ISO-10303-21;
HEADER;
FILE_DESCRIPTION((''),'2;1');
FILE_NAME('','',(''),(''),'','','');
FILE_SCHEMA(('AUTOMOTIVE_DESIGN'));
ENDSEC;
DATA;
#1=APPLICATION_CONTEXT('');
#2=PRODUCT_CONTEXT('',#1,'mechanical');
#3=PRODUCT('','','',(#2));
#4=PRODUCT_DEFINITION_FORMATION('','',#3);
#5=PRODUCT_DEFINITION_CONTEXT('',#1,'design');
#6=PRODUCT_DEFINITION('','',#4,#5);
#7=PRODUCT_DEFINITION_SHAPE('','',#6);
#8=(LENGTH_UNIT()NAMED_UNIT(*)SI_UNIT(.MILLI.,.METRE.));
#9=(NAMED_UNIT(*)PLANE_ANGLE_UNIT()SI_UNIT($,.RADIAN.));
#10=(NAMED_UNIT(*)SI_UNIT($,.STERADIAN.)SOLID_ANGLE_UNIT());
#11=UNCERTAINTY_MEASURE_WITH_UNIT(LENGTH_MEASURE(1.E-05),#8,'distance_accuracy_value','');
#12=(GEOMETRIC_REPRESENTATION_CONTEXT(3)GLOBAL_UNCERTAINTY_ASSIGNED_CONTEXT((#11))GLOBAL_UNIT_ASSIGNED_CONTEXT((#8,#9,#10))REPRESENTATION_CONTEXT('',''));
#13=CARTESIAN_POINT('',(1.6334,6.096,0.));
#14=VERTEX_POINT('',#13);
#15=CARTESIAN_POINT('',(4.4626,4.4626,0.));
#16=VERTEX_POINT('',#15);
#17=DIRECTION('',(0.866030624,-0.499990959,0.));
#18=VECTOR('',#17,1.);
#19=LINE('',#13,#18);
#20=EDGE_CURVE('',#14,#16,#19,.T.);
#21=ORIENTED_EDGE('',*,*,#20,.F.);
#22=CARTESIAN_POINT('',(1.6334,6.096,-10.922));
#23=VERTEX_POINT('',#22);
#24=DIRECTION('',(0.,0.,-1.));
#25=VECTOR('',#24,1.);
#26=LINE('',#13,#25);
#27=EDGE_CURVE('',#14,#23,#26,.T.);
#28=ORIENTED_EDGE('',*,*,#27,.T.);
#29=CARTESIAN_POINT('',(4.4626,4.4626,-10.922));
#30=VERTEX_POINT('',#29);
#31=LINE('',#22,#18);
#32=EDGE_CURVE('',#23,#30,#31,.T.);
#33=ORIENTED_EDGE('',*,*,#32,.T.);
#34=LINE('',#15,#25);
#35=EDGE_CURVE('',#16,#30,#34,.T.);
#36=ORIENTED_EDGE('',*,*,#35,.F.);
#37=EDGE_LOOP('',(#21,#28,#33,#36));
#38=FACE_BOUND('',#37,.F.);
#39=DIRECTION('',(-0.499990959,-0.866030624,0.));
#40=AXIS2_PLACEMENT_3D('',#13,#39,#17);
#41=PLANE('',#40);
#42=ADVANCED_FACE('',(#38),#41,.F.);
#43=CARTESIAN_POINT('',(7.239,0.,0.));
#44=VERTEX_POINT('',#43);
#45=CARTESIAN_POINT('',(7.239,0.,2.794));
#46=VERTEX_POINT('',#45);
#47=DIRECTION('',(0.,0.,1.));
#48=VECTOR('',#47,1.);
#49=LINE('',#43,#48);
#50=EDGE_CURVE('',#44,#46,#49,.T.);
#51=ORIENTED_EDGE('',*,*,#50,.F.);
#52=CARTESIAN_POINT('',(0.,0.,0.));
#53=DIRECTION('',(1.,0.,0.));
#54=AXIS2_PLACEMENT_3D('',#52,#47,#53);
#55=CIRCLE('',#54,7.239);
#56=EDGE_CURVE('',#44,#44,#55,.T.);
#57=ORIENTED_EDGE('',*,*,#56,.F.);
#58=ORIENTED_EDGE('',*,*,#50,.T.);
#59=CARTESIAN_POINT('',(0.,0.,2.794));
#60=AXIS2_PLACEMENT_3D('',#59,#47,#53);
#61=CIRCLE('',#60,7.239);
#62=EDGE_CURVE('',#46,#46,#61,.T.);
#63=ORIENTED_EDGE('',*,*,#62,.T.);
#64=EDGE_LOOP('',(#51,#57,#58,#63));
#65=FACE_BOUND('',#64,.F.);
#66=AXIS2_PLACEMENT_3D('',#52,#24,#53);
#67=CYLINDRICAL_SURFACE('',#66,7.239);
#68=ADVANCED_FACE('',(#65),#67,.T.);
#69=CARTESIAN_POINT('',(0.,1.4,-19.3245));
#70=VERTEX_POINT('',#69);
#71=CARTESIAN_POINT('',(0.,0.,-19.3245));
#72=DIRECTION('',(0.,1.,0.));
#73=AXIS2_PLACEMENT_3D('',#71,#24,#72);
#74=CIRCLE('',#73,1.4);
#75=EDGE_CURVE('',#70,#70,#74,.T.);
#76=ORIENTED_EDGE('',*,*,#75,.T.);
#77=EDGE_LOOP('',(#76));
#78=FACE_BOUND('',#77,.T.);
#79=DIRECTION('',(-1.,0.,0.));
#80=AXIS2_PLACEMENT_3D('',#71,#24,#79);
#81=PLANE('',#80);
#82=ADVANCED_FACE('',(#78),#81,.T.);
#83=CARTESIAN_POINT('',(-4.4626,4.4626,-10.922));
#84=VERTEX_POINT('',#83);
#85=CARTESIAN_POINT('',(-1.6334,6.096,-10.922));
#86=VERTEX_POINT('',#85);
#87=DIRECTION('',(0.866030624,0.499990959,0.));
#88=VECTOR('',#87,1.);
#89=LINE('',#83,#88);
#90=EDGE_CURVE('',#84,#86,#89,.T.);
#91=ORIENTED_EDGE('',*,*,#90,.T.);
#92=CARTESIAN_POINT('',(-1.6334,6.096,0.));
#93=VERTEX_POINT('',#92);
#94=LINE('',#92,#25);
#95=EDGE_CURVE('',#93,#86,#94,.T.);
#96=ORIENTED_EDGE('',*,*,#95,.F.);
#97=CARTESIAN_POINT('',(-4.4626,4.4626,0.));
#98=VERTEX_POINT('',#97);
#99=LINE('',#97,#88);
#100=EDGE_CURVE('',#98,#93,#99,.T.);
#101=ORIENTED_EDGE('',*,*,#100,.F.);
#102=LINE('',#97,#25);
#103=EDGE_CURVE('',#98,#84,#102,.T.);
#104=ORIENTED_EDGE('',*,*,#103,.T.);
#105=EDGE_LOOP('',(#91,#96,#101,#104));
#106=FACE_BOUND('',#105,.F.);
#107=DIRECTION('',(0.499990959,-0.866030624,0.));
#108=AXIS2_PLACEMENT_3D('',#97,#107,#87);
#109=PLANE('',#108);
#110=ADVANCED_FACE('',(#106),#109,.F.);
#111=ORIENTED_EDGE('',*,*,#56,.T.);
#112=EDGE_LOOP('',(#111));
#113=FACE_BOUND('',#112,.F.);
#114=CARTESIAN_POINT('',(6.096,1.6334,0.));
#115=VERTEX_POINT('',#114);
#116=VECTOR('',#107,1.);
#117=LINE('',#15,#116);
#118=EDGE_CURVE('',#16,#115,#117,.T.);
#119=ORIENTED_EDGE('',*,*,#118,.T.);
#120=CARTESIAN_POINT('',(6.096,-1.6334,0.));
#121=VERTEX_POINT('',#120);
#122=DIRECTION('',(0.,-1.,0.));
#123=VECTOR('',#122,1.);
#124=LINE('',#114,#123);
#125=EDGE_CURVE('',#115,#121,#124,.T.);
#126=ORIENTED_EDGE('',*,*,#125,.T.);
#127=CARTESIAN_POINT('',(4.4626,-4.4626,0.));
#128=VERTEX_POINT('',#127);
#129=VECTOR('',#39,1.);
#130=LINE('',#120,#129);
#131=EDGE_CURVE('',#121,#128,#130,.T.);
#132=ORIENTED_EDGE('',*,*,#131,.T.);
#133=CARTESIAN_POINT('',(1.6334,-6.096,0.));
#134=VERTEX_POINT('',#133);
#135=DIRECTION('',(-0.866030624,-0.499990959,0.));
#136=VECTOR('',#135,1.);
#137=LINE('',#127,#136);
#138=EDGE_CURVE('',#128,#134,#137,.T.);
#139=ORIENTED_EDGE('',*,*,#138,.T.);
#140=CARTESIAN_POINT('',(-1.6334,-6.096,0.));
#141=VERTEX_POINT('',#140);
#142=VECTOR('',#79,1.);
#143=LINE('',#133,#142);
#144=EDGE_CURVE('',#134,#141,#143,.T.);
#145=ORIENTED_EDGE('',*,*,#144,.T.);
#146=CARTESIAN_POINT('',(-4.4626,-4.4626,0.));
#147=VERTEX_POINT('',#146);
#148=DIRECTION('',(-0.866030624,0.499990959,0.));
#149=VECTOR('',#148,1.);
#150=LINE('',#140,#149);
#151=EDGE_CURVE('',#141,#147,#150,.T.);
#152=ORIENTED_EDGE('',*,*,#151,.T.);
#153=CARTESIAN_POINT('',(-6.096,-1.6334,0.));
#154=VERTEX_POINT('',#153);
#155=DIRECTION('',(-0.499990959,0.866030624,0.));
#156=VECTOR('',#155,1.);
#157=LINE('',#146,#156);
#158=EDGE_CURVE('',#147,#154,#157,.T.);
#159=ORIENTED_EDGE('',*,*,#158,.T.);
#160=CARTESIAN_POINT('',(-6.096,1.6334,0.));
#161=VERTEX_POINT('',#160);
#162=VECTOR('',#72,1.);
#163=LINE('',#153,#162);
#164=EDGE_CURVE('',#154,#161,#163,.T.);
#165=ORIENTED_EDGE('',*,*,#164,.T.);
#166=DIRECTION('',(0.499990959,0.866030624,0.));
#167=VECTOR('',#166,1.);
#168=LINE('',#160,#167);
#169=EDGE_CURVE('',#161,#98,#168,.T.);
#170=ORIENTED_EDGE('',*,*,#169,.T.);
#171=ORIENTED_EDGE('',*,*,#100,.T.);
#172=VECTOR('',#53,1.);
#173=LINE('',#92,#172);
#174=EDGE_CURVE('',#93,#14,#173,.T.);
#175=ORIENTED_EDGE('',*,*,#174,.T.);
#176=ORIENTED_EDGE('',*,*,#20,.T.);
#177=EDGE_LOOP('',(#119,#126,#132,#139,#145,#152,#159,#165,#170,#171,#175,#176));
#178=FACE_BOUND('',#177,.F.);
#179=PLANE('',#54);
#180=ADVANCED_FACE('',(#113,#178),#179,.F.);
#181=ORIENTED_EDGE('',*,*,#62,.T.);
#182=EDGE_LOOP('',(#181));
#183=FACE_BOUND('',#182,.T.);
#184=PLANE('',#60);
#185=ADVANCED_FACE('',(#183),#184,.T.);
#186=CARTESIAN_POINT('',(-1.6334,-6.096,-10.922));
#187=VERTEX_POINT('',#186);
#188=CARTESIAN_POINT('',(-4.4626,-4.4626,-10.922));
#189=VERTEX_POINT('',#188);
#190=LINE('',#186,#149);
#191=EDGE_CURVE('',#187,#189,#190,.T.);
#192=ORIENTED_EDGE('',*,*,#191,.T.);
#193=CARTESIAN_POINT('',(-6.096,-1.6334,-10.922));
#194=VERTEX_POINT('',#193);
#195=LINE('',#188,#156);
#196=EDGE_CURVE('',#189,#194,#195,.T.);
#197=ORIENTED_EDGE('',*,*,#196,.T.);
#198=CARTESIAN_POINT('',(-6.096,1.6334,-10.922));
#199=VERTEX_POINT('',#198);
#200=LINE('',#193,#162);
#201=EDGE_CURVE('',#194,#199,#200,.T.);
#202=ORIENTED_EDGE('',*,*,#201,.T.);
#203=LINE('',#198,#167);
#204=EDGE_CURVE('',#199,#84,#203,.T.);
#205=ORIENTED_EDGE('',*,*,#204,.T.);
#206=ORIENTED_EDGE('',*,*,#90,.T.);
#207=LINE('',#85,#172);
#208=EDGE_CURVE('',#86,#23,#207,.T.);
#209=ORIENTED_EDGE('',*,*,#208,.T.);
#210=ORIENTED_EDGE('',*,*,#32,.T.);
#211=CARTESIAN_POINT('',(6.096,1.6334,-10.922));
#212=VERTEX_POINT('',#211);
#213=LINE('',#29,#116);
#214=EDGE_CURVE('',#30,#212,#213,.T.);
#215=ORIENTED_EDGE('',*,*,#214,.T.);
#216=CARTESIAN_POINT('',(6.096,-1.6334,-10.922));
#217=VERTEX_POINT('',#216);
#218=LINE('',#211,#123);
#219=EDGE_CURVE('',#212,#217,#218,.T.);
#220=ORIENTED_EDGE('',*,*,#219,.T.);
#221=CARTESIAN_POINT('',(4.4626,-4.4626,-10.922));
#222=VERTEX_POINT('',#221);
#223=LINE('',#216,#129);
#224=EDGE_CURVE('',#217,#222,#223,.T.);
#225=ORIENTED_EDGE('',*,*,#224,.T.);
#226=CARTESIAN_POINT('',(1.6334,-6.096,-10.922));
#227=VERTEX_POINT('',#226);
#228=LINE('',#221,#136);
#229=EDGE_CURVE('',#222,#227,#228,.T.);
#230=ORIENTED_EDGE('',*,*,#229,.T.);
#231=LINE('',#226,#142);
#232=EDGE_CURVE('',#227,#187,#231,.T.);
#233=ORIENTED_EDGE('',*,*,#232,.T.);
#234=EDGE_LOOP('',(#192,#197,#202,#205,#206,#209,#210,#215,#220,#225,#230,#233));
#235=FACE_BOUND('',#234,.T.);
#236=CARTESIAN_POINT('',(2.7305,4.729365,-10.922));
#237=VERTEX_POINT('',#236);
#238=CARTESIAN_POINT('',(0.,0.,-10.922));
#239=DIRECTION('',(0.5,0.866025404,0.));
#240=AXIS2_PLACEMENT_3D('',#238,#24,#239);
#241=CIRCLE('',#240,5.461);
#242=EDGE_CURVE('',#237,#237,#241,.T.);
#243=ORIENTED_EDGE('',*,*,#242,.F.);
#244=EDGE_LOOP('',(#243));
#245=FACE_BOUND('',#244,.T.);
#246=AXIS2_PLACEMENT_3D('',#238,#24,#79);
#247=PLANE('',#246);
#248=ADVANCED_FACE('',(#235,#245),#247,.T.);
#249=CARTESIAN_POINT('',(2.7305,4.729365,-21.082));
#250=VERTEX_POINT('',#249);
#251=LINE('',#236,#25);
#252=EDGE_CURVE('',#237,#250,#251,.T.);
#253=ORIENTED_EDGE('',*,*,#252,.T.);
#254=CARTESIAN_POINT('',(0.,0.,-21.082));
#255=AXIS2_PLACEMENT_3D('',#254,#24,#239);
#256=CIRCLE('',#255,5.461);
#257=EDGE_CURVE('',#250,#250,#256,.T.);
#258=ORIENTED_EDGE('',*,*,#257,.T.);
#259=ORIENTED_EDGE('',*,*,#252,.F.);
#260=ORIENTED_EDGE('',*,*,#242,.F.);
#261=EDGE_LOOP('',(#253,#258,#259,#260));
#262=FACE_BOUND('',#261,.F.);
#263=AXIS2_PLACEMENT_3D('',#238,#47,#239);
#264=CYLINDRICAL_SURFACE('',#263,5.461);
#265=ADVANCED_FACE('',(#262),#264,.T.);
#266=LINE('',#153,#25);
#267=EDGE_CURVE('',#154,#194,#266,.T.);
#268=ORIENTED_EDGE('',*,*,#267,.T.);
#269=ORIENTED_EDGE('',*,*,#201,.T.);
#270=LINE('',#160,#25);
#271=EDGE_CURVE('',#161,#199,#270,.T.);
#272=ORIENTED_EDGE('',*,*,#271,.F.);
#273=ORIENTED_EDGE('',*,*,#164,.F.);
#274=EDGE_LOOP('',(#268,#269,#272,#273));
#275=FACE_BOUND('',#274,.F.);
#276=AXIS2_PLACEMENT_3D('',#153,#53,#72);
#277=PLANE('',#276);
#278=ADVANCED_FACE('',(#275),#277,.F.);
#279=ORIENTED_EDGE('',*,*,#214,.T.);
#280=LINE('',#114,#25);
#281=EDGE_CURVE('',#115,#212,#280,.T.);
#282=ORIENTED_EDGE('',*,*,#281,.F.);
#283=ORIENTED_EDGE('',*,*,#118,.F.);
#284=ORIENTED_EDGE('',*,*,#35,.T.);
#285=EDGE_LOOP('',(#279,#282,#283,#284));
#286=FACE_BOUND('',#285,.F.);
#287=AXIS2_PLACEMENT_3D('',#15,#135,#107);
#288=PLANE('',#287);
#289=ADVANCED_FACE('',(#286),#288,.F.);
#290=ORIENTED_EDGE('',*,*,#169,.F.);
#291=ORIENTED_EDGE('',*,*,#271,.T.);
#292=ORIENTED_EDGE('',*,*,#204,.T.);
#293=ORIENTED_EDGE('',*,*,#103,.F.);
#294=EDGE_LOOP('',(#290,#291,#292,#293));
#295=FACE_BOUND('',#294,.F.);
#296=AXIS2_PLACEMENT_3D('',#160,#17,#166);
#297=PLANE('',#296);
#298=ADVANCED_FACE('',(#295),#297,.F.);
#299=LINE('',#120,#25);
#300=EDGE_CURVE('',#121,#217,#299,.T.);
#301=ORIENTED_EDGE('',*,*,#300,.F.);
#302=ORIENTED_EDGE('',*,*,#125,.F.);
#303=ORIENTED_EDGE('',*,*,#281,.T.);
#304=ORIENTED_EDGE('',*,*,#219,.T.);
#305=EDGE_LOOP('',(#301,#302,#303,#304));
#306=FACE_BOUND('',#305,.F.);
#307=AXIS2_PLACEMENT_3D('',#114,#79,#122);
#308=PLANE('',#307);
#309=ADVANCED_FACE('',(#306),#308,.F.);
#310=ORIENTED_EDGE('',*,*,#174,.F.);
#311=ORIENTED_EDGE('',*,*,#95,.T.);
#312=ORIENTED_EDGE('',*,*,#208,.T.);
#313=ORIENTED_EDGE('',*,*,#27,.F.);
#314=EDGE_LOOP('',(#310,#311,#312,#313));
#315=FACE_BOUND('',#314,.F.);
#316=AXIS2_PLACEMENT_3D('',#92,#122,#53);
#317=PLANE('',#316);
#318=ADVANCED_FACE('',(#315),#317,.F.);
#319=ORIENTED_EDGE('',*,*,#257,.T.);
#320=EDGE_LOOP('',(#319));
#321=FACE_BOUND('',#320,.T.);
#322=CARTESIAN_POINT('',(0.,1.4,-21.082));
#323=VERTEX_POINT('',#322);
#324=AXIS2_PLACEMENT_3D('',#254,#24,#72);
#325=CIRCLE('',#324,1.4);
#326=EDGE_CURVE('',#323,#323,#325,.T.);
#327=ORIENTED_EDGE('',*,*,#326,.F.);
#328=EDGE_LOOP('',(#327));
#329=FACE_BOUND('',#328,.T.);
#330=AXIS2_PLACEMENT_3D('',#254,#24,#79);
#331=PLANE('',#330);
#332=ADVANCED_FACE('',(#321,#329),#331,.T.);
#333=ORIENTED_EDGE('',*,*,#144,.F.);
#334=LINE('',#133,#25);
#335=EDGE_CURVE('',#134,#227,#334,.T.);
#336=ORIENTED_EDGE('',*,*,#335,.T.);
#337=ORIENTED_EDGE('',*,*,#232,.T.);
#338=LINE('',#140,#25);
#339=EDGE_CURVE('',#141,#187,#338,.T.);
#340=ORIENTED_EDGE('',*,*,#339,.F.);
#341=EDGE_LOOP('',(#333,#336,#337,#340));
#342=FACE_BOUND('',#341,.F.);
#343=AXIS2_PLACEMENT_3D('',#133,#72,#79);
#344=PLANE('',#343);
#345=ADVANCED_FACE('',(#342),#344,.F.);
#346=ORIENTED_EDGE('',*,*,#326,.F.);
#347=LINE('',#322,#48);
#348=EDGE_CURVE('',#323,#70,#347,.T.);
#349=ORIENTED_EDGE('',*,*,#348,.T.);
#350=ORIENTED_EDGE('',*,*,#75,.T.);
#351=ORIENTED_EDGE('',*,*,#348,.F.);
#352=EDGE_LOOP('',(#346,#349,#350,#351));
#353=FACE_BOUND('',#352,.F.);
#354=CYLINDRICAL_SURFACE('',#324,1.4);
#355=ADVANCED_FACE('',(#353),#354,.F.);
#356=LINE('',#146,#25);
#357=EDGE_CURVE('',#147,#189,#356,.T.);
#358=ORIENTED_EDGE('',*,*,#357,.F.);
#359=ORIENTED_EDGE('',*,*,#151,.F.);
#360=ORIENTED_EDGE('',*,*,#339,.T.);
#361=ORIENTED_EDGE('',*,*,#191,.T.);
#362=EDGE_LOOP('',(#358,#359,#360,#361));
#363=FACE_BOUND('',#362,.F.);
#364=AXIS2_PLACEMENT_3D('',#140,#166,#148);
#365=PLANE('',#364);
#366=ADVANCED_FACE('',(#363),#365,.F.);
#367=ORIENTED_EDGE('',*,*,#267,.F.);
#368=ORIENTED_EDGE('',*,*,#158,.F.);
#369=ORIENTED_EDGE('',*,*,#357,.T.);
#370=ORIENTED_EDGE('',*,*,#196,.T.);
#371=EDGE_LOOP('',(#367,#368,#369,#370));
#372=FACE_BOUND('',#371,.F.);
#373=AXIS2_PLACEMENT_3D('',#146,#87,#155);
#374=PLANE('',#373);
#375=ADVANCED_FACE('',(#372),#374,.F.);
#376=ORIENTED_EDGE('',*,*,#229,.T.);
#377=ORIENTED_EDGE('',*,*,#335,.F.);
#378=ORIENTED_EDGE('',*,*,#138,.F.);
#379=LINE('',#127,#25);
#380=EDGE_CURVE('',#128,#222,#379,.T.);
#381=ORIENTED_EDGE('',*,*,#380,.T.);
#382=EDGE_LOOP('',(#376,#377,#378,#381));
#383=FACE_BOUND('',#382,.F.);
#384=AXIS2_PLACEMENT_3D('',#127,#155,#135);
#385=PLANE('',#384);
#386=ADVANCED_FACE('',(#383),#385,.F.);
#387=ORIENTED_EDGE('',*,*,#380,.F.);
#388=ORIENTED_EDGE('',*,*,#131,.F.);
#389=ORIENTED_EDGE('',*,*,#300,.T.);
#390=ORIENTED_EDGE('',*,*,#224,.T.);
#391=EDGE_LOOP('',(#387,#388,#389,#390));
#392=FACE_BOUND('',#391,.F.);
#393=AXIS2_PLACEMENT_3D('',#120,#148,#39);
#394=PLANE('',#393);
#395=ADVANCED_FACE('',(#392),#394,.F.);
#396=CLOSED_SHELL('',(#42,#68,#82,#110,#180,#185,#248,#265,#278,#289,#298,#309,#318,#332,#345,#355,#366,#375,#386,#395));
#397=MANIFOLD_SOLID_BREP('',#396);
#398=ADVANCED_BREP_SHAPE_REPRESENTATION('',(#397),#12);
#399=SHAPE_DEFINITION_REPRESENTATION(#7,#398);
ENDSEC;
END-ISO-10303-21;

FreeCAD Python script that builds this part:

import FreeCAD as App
import Part
import Sketcher
from FreeCAD import Vector
Q = App.Units.Quantity


def add_polygon(sketch, points):
    """Adds a closed chain of lines whose ends are joined by coincident constraints."""
    first, n = sketch.GeometryCount, len(points)
    for a, b in zip(points, points[1:] + points[:1]):
        sketch.addGeometry(Part.LineSegment(App.Vector(*a, 0), App.Vector(*b, 0)), False)
    for i in range(n):
        sketch.addConstraint(Sketcher.Constraint("Coincident", first + i, 2, first + (i + 1) % n, 1))

doc = App.newDocument("Part")
params = doc.addObject("Spreadsheet::Sheet", "Params")
for row, (alias, value) in enumerate([
    ("sketch1_diameter", "0.57 in"),
    ("pad1_length", "0.11 in"),
    ("pad2_length", "0.43 in"),
    ("sketch3_diameter", "0.43 in"),
    ("pad3_length", "0.4 in"),
    ("pocket1_length", "0.0691929 in"),
], start=1):
    params.set(f"A{row}", alias)
    params.set(f"B{row}", "=" + value)
    params.setAlias(f"B{row}", alias)

body = doc.addObject("PartDesign::Body", "Body")

# Sketch on XY plane
sketch1 = doc.addObject("Sketcher::SketchObject", "Sketch")
body.addObject(sketch1)
sketch1.AttachmentSupport = (doc.XY_Plane, [""])
sketch1.MapMode = "FlatFace"
sketch1.addGeometry(Part.Circle(Vector(0, 0, 0), Vector(0, 0, 1), 7), False)
sketch1.addConstraint(Sketcher.Constraint("Coincident", 0, 3, -1, 1))
sketch1.addConstraint(Sketcher.Constraint("Diameter", 0, Q("0.57 in")))
sketch1.setExpression("Constraints[1]", "Params.sketch1_diameter")
pad1 = doc.addObject("PartDesign::Pad", "Pad")
body.addObject(pad1)
pad1.Profile = sketch1
pad1.setExpression("Length", "Params.pad1_length")

# Sketch on XY plane
sketch2 = doc.addObject("Sketcher::SketchObject", "Sketch001")
body.addObject(sketch2)
sketch2.AttachmentSupport = (doc.XY_Plane, [""])
sketch2.MapMode = "FlatFace"
add_polygon(sketch2, [(6.1, -1.6), (4.5, -4.5), (1.6, -6.1), (-1.6, -6.1), (-4.5, -4.5), (-6.1, -1.6), (-6.1, 1.6), (-4.5, 4.5), (-1.6, 6.1), (1.6, 6.1), (4.5, 4.5), (6.1, 1.6)])  # lines 0-11
sketch2.addConstraint(Sketcher.Constraint("Horizontal", 2))
sketch2.addConstraint(Sketcher.Constraint("Vertical", 5))
sketch2.addConstraint(Sketcher.Constraint("Horizontal", 8))
sketch2.addConstraint(Sketcher.Constraint("Vertical", 11))
sketch2.addConstraint(Sketcher.Constraint("Symmetric", 0, 2, 6, 2, -1, 1))
sketch2.addConstraint(Sketcher.Constraint("Symmetric", 1, 2, 7, 2, -1, 1))
sketch2.addConstraint(Sketcher.Constraint("Symmetric", 3, 2, 9, 2, -1, 1))
sketch2.addConstraint(Sketcher.Constraint("Symmetric", 4, 2, 10, 2, -1, 1))
sketch2.addConstraint(Sketcher.Constraint("Symmetric", 0, 2, 3, 2, -2))
sketch2.addConstraint(Sketcher.Constraint("Perpendicular", 0, 3))
sketch2.addConstraint(Sketcher.Constraint("Perpendicular", 1, 4))
sketch2.addConstraint(Sketcher.Constraint("Perpendicular", 3, 6))
sketch2.addConstraint(Sketcher.Constraint("Perpendicular", 6, 9))
sketch2.addConstraint(Sketcher.Constraint("Horizontal", 5, 2, 10, 2))
sketch2.addConstraint(Sketcher.Constraint("Equal", 8, 5))
sketch2.addConstraint(Sketcher.Constraint("Equal", 0, 1))
sketch2.addConstraint(Sketcher.Constraint("Angle", 0, Q("-119.9994 deg")))
sketch2.addConstraint(Sketcher.Constraint("DistanceY", 1, 2, -1, 1, Q("0.24 in")))
sketch2.addConstraint(Sketcher.Constraint("DistanceX", 2, 2, 0, 2, Q("0.24 in")))
pad2 = doc.addObject("PartDesign::Pad", "Pad001")
body.addObject(pad2)
pad2.Profile = sketch2
pad2.setExpression("Length", "Params.pad2_length")
pad2.Reversed = True

# Sketch on XY plane
sketch3 = doc.addObject("Sketcher::SketchObject", "Sketch002")
body.addObject(sketch3)
sketch3.AttachmentSupport = (doc.XY_Plane, [""])
sketch3.MapMode = "FlatFace"
sketch3.AttachmentOffset = App.Placement(Vector(0, 0, -0.43 * 25.4), App.Rotation())
sketch3.addGeometry(Part.Circle(Vector(0, 0, 0), Vector(0, 0, 1), 5), False)
sketch3.addConstraint(Sketcher.Constraint("Coincident", 0, 3, -1, 1))
sketch3.addConstraint(Sketcher.Constraint("Diameter", 0, Q("0.43 in")))
sketch3.setExpression("Constraints[1]", "Params.sketch3_diameter")
pad3 = doc.addObject("PartDesign::Pad", "Pad002")
body.addObject(pad3)
pad3.Profile = sketch3
pad3.setExpression("Length", "Params.pad3_length")
pad3.Reversed = True

# Sketch on XY plane
sketch4 = doc.addObject("Sketcher::SketchObject", "Sketch003")
body.addObject(sketch4)
sketch4.AttachmentSupport = (doc.XY_Plane, [""])
sketch4.MapMode = "FlatFace"
sketch4.AttachmentOffset = App.Placement(Vector(0, 0, -0.83 * 25.4), App.Rotation())
sketch4.addGeometry(Part.Circle(Vector(0, 0, 0), Vector(0, 0, 1), 1.4), False)
sketch4.addConstraint(Sketcher.Constraint("Coincident", 0, 3, -1, 1))
sketch4.addConstraint(Sketcher.Constraint("Diameter", 0, Q("2.8 mm")))
pocket1 = doc.addObject("PartDesign::Pocket", "Pocket")
body.addObject(pocket1)
pocket1.Profile = sketch4
pocket1.setExpression("Length", "Params.pocket1_length")
pocket1.Reversed = True

doc.recompute()
